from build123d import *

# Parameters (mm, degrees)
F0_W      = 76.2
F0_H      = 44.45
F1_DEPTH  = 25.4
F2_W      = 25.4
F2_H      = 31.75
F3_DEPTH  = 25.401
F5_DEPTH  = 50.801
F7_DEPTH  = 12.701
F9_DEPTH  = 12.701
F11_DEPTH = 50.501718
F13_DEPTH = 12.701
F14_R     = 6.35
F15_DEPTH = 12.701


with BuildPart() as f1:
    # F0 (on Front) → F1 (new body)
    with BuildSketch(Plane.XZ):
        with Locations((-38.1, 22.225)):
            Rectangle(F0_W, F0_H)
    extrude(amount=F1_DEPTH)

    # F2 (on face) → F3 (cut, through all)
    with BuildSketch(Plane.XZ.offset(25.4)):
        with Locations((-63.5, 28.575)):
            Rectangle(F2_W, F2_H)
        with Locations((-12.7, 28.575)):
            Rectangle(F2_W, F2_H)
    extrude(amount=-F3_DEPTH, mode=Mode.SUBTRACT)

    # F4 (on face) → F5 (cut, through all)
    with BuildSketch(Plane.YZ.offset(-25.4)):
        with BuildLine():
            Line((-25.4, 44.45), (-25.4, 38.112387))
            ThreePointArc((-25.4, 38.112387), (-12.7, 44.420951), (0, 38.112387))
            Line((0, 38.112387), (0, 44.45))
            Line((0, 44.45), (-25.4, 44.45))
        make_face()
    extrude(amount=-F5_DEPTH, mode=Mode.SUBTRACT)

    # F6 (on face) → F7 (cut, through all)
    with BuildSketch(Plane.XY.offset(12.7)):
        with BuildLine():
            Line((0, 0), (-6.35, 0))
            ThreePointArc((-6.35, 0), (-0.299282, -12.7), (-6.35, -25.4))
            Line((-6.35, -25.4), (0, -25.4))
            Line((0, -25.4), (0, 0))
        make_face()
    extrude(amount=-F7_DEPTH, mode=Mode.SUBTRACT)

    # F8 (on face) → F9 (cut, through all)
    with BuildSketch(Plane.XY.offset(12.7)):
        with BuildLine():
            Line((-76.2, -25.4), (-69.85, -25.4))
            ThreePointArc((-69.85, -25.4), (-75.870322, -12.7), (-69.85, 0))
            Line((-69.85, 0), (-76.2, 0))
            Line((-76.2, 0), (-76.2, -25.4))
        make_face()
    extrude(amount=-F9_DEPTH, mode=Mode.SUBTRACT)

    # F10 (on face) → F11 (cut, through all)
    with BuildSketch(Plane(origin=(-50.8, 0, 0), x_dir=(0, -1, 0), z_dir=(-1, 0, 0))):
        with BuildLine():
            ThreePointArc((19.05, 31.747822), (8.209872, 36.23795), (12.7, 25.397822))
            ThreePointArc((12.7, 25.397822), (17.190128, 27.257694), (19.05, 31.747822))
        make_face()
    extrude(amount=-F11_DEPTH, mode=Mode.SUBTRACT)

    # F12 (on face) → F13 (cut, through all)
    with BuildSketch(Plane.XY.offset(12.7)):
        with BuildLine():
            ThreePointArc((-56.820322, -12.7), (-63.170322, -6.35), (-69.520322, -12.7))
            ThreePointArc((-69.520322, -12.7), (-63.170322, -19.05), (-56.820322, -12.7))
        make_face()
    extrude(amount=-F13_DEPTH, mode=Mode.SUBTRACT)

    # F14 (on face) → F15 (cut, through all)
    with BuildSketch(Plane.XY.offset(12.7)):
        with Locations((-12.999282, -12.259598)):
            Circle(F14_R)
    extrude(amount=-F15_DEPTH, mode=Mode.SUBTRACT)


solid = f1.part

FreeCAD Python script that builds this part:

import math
import FreeCAD as App
import Part
import Sketcher

V = App.Vector
Q = App.Units.Quantity

doc = App.newDocument("Part")
params = doc.addObject("Spreadsheet::Sheet", "Params")
for row, (alias, value) in enumerate([
    ("sketch1_width", "3 in"),
    ("sketch1_height", "1.75 in"),
    ("pad1_length", "1 in"),
    ("sketch2_width", "1 in"),
    ("sketch2_height", "1.25 in"),
    ("sketch3_width", "1 in"),
    ("sketch4_height", "1 in"),
    ("sketch4_width", "0.25 in"),
    ("sketch5_height", "1 in"),
    ("sketch5_width", "0.25 in"),
    ("sketch6_radius", "0.25 in"),
    ("sketch7_diameter", "0.5 in"),
    ("sketch8_diameter", "0.5 in"),
], start=1):
    params.set(f"A{row}", alias)
    params.set(f"B{row}", "=" + value)
    params.setAlias(f"B{row}", alias)

body = doc.addObject("PartDesign::Body", "Body")

# Sketch on XZ plane
sketch1 = body.newObject("Sketcher::SketchObject", "Sketch")
sketch1.AttachmentSupport = (doc.getObject("XZ_Plane"), [""])
sketch1.MapMode = "FlatFace"
sketch1.addGeometry(Part.LineSegment(V(-76, 44, 0), V(-76, 0, 0)), False)
sketch1.addGeometry(Part.LineSegment(V(-76, 0, 0), V(0, 0, 0)), False)
sketch1.addGeometry(Part.LineSegment(V(0, 0, 0), V(0, 44, 0)), False)
sketch1.addGeometry(Part.LineSegment(V(0, 44, 0), V(-76, 44, 0)), False)
sketch1.addConstraint(Sketcher.Constraint("Coincident", 0, 2, 1, 1))
sketch1.addConstraint(Sketcher.Constraint("Coincident", 1, 2, 2, 1))
sketch1.addConstraint(Sketcher.Constraint("Coincident", 2, 2, 3, 1))
sketch1.addConstraint(Sketcher.Constraint("Coincident", 3, 2, 0, 1))
sketch1.addConstraint(Sketcher.Constraint("Vertical", 0))
sketch1.addConstraint(Sketcher.Constraint("Horizontal", 1))
sketch1.addConstraint(Sketcher.Constraint("Vertical", 2))
sketch1.addConstraint(Sketcher.Constraint("Horizontal", 3))
sketch1.addConstraint(Sketcher.Constraint("Coincident", 1, 2, -1, 1))
sketch1.addConstraint(Sketcher.Constraint("DistanceX", 1, 1, 1, 2, Q("3 in")))
sketch1.addConstraint(Sketcher.Constraint("DistanceY", 0, 2, 0, 1, Q("1.75 in")))
sketch1.setExpression("Constraints[9]", "Params.sketch1_width")
sketch1.setExpression("Constraints[10]", "Params.sketch1_height")
pad1 = body.newObject("PartDesign::Pad", "Pad")
pad1.Profile = sketch1
pad1.setExpression("Length", "Params.pad1_length")

# Sketch on XZ plane
sketch2 = body.newObject("Sketcher::SketchObject", "Sketch001")
sketch2.AttachmentSupport = (doc.getObject("XZ_Plane"), [""])
sketch2.MapMode = "FlatFace"
sketch2.AttachmentOffset = App.Placement(V(0, 0, 1 * 25.4), App.Rotation())
sketch2.addGeometry(Part.LineSegment(V(-76, 44, 0), V(-76, 13, 0)), False)
sketch2.addGeometry(Part.LineSegment(V(-76, 13, 0), V(-51, 13, 0)), False)
sketch2.addGeometry(Part.LineSegment(V(-51, 13, 0), V(-51, 44, 0)), False)
sketch2.addGeometry(Part.LineSegment(V(-51, 44, 0), V(-76, 44, 0)), False)
sketch2.addGeometry(Part.LineSegment(V(-25, 44, 0), V(-25, 13, 0)), False)
sketch2.addGeometry(Part.LineSegment(V(-25, 13, 0), V(0, 13, 0)), False)
sketch2.addGeometry(Part.LineSegment(V(0, 13, 0), V(0, 44, 0)), False)
sketch2.addGeometry(Part.LineSegment(V(0, 44, 0), V(-25, 44, 0)), False)
sketch2.addConstraint(Sketcher.Constraint("Coincident", 0, 2, 1, 1))
sketch2.addConstraint(Sketcher.Constraint("Coincident", 1, 2, 2, 1))
sketch2.addConstraint(Sketcher.Constraint("Coincident", 2, 2, 3, 1))
sketch2.addConstraint(Sketcher.Constraint("Coincident", 3, 2, 0, 1))
sketch2.addConstraint(Sketcher.Constraint("Coincident", 4, 2, 5, 1))
sketch2.addConstraint(Sketcher.Constraint("Coincident", 5, 2, 6, 1))
sketch2.addConstraint(Sketcher.Constraint("Coincident", 6, 2, 7, 1))
sketch2.addConstraint(Sketcher.Constraint("Coincident", 7, 2, 4, 1))
sketch2.addConstraint(Sketcher.Constraint("Vertical", 0))
sketch2.addConstraint(Sketcher.Constraint("Horizontal", 1))
sketch2.addConstraint(Sketcher.Constraint("Vertical", 2))
sketch2.addConstraint(Sketcher.Constraint("Horizontal", 3))
sketch2.addConstraint(Sketcher.Constraint("Vertical", 4))
sketch2.addConstraint(Sketcher.Constraint("Horizontal", 5))
sketch2.addConstraint(Sketcher.Constraint("Vertical", 6))
sketch2.addConstraint(Sketcher.Constraint("Horizontal", 7))
sketch2.addConstraint(Sketcher.Constraint("PointOnObject", 5, 2, -2))
sketch2.addConstraint(Sketcher.Constraint("Horizontal", 1, 2, 4, 2))
sketch2.addConstraint(Sketcher.Constraint("Horizontal", 3, 2, 6, 2))
sketch2.addConstraint(Sketcher.Constraint("Equal", 3, 5))
sketch2.addConstraint(Sketcher.Constraint("DistanceX", 1, 1, 1, 2, Q("1 in")))
sketch2.addConstraint(Sketcher.Constraint("DistanceX", 0, 2, -1, 1, Q("3 in")))
sketch2.addConstraint(Sketcher.Constraint("DistanceY", 0, 2, 0, 1, Q("1.25 in")))
sketch2.addConstraint(Sketcher.Constraint("DistanceY", -1, 1, 0, 2, Q("0.5 in")))
sketch2.setExpression("Constraints[20]", "Params.sketch2_width")
sketch2.setExpression("Constraints[22]", "Params.sketch2_height")
pocket1 = body.newObject("PartDesign::Pocket", "Pocket")
pocket1.Profile = sketch2
pocket1.Type = "ThroughAll"

# Sketch on YZ plane
sketch3 = body.newObject("Sketcher::SketchObject", "Sketch002")
sketch3.AttachmentSupport = (doc.getObject("YZ_Plane"), [""])
sketch3.MapMode = "FlatFace"
sketch3.AttachmentOffset = App.Placement(V(0, 0, -1 * 25.4), App.Rotation())
sketch3.addGeometry(Part.LineSegment(V(-25, 44, 0), V(-25, 38, 0)), False)
sketch3.addGeometry(Part.ArcOfCircle(Part.Circle(V(-13, 28, 0), V(0, 0, 1), 16), math.radians(37), math.radians(143)), False)
sketch3.addGeometry(Part.LineSegment(V(0, 38, 0), V(0, 44, 0)), False)
sketch3.addGeometry(Part.LineSegment(V(0, 44, 0), V(-25, 44, 0)), False)
sketch3.addConstraint(Sketcher.Constraint("Coincident", 0, 2, 1, 2))
sketch3.addConstraint(Sketcher.Constraint("Coincident", 1, 1, 2, 1))
sketch3.addConstraint(Sketcher.Constraint("Coincident", 2, 2, 3, 1))
sketch3.addConstraint(Sketcher.Constraint("Coincident", 3, 2, 0, 1))
sketch3.addConstraint(Sketcher.Constraint("Vertical", 0))
sketch3.addConstraint(Sketcher.Constraint("Vertical", 2))
sketch3.addConstraint(Sketcher.Constraint("Horizontal", 3))
sketch3.addConstraint(Sketcher.Constraint("PointOnObject", 1, 1, -2))
sketch3.addConstraint(Sketcher.Constraint("Horizontal", 0, 2, 1, 1))
sketch3.addConstraint(Sketcher.Constraint("DistanceX", 3, 2, 3, 1, Q("1 in")))
sketch3.addConstraint(Sketcher.Constraint("DistanceY", -1, 1, 2, 2, Q("1.75 in")))
sketch3.addConstraint(Sketcher.Constraint("Radius", 1, Q("15.937698 mm")))
sketch3.addConstraint(Sketcher.Constraint("DistanceY", 0, 2, 0, 1, Q("6.337613 mm")))
sketch3.setExpression("Constraints[9]", "Params.sketch3_width")
pocket2 = body.newObject("PartDesign::Pocket", "Pocket001")
pocket2.Profile = sketch3
pocket2.Type = "ThroughAll"

# Sketch on XY plane
sketch4 = body.newObject("Sketcher::SketchObject", "Sketch003")
sketch4.AttachmentSupport = (doc.getObject("XY_Plane"), [""])
sketch4.MapMode = "FlatFace"
sketch4.AttachmentOffset = App.Placement(V(0, 0, 0.5 * 25.4), App.Rotation())
sketch4.addGeometry(Part.LineSegment(V(0, 0, 0), V(-6, 0, 0)), False)
sketch4.addGeometry(Part.ArcOfCircle(Part.Circle(V(-17, -13, 0), V(0, 0, 1), 16), math.radians(-51), math.radians(51)), False)
sketch4.addGeometry(Part.LineSegment(V(-6, -25, 0), V(0, -25, 0)), False)
sketch4.addGeometry(Part.LineSegment(V(0, -25, 0), V(0, 0, 0)), False)
sketch4.addConstraint(Sketcher.Constraint("Coincident", 0, 2, 1, 2))
sketch4.addConstraint(Sketcher.Constraint("Coincident", 1, 1, 2, 1))
sketch4.addConstraint(Sketcher.Constraint("Coincident", 2, 2, 3, 1))
sketch4.addConstraint(Sketcher.Constraint("Coincident", 3, 2, 0, 1))
sketch4.addConstraint(Sketcher.Constraint("Horizontal", 0))
sketch4.addConstraint(Sketcher.Constraint("Horizontal", 2))
sketch4.addConstraint(Sketcher.Constraint("Vertical", 3))
sketch4.addConstraint(Sketcher.Constraint("Coincident", 3, 2, -1, 1))
sketch4.addConstraint(Sketcher.Constraint("Vertical", 0, 2, 1, 1))
sketch4.addConstraint(Sketcher.Constraint("DistanceY", 3, 1, 3, 2, Q("1 in")))
sketch4.addConstraint(Sketcher.Constraint("DistanceX", 0, 2, 0, 1, Q("0.25 in")))
sketch4.addConstraint(Sketcher.Constraint("Radius", 1, Q("16.353529 mm")))
sketch4.setExpression("Constraints[9]", "Params.sketch4_height")
sketch4.setExpression("Constraints[10]", "Params.sketch4_width")
pocket3 = body.newObject("PartDesign::Pocket", "Pocket002")
pocket3.Profile = sketch4
pocket3.Type = "ThroughAll"

# Sketch on XY plane
sketch5 = body.newObject("Sketcher::SketchObject", "Sketch004")
sketch5.AttachmentSupport = (doc.getObject("XY_Plane"), [""])
sketch5.MapMode = "FlatFace"
sketch5.AttachmentOffset = App.Placement(V(0, 0, 0.5 * 25.4), App.Rotation())
sketch5.addGeometry(Part.LineSegment(V(-76, -25, 0), V(-70, -25, 0)), False)
sketch5.addGeometry(Part.ArcOfCircle(Part.Circle(V(-59, -13, 0), V(0, 0, 1), 16), math.radians(129), math.radians(231)), False)
sketch5.addGeometry(Part.LineSegment(V(-70, 0, 0), V(-76, 0, 0)), False)
sketch5.addGeometry(Part.LineSegment(V(-76, 0, 0), V(-76, -25, 0)), False)
sketch5.addConstraint(Sketcher.Constraint("Coincident", 0, 2, 1, 2))
sketch5.addConstraint(Sketcher.Constraint("Coincident", 1, 1, 2, 1))
sketch5.addConstraint(Sketcher.Constraint("Coincident", 2, 2, 3, 1))
sketch5.addConstraint(Sketcher.Constraint("Coincident", 3, 2, 0, 1))
sketch5.addConstraint(Sketcher.Constraint("Horizontal", 0))
sketch5.addConstraint(Sketcher.Constraint("Horizontal", 2))
sketch5.addConstraint(Sketcher.Constraint("Vertical", 3))
sketch5.addConstraint(Sketcher.Constraint("PointOnObject", 1, 1, -1))
sketch5.addConstraint(Sketcher.Constraint("Vertical", 0, 2, 1, 1))
sketch5.addConstraint(Sketcher.Constraint("DistanceY", 3, 2, 3, 1, Q("1 in")))
sketch5.addConstraint(Sketcher.Constraint("DistanceX", 2, 2, -1, 1, Q("3 in")))
sketch5.addConstraint(Sketcher.Constraint("DistanceX", 0, 1, 0, 2, Q("0.25 in")))
sketch5.addConstraint(Sketcher.Constraint("Radius", 1, Q("16.405624 mm")))
sketch5.setExpression("Constraints[9]", "Params.sketch5_height")
sketch5.setExpression("Constraints[11]", "Params.sketch5_width")
pocket4 = body.newObject("PartDesign::Pocket", "Pocket003")
pocket4.Profile = sketch5
pocket4.Type = "ThroughAll"

# Sketch on YZ plane
sketch6 = body.newObject("Sketcher::SketchObject", "Sketch005")
sketch6.AttachmentSupport = (doc.getObject("YZ_Plane"), [""])
sketch6.MapMode = "FlatFace"
sketch6.AttachmentOffset = App.Placement(V(0, 0, -2 * 25.4), App.Rotation())
sketch6.addGeometry(Part.ArcOfCircle(Part.Circle(V(-13, 32, 0), V(0, 0, 1), 6), math.radians(-90), math.radians(180)), False)
sketch6.addGeometry(Part.ArcOfCircle(Part.Circle(V(-13, 32, 0), V(0, 0, 1), 6), math.radians(-180), math.radians(-90)), False)
sketch6.addConstraint(Sketcher.Constraint("Tangent", 0, 1, 1, 2))
sketch6.addConstraint(Sketcher.Constraint("Coincident", 1, 1, 0, 2))
sketch6.addConstraint(Sketcher.Constraint("Horizontal", 0, 3, 1, 1))
sketch6.addConstraint(Sketcher.Constraint("Vertical", 1, 3, 0, 1))
sketch6.addConstraint(Sketcher.Constraint("Radius", 0, Q("0.25 in")))
sketch6.addConstraint(Sketcher.Constraint("DistanceX", 0, 3, -1, 1, Q("0.5 in")))
sketch6.addConstraint(Sketcher.Constraint("DistanceY", -1, 1, 0, 3, Q("31.747822 mm")))
sketch6.setExpression("Constraints[4]", "Params.sketch6_radius")
pocket5 = body.newObject("PartDesign::Pocket", "Pocket004")
pocket5.Profile = sketch6
pocket5.Type = "ThroughAll"
pocket5.Reversed = True

# Sketch on XY plane
sketch7 = body.newObject("Sketcher::SketchObject", "Sketch006")
sketch7.AttachmentSupport = (doc.getObject("XY_Plane"), [""])
sketch7.MapMode = "FlatFace"
sketch7.AttachmentOffset = App.Placement(V(0, 0, 0.5 * 25.4), App.Rotation())
sketch7.addGeometry(Part.Circle(V(-63, -13, 0), V(0, 0, 1), 6), False)
sketch7.addConstraint(Sketcher.Constraint("Diameter", 0, Q("0.5 in")))
sketch7.addConstraint(Sketcher.Constraint("DistanceY", 0, 3, -1, 1, Q("0.5 in")))
sketch7.addConstraint(Sketcher.Constraint("DistanceX", 0, 3, -1, 1, Q("63.170322 mm")))
sketch7.setExpression("Constraints[0]", "Params.sketch7_diameter")
pocket6 = body.newObject("PartDesign::Pocket", "Pocket005")
pocket6.Profile = sketch7
pocket6.Type = "ThroughAll"

# Sketch on XY plane
sketch8 = body.newObject("Sketcher::SketchObject", "Sketch007")
sketch8.AttachmentSupport = (doc.getObject("XY_Plane"), [""])
sketch8.MapMode = "FlatFace"
sketch8.AttachmentOffset = App.Placement(V(0, 0, 0.5 * 25.4), App.Rotation())
sketch8.addGeometry(Part.Circle(V(-13, -12, 0), V(0, 0, 1), 6), False)
sketch8.addConstraint(Sketcher.Constraint("Diameter", 0, Q("0.5 in")))
sketch8.addConstraint(Sketcher.Constraint("DistanceX", 0, 3, -1, 1, Q("12.999282 mm")))
sketch8.addConstraint(Sketcher.Constraint("DistanceY", 0, 3, -1, 1, Q("12.259598 mm")))
sketch8.setExpression("Constraints[0]", "Params.sketch8_diameter")
pocket7 = body.newObject("PartDesign::Pocket", "Pocket006")
pocket7.Profile = sketch8
pocket7.Type = "ThroughAll"

doc.recompute()
